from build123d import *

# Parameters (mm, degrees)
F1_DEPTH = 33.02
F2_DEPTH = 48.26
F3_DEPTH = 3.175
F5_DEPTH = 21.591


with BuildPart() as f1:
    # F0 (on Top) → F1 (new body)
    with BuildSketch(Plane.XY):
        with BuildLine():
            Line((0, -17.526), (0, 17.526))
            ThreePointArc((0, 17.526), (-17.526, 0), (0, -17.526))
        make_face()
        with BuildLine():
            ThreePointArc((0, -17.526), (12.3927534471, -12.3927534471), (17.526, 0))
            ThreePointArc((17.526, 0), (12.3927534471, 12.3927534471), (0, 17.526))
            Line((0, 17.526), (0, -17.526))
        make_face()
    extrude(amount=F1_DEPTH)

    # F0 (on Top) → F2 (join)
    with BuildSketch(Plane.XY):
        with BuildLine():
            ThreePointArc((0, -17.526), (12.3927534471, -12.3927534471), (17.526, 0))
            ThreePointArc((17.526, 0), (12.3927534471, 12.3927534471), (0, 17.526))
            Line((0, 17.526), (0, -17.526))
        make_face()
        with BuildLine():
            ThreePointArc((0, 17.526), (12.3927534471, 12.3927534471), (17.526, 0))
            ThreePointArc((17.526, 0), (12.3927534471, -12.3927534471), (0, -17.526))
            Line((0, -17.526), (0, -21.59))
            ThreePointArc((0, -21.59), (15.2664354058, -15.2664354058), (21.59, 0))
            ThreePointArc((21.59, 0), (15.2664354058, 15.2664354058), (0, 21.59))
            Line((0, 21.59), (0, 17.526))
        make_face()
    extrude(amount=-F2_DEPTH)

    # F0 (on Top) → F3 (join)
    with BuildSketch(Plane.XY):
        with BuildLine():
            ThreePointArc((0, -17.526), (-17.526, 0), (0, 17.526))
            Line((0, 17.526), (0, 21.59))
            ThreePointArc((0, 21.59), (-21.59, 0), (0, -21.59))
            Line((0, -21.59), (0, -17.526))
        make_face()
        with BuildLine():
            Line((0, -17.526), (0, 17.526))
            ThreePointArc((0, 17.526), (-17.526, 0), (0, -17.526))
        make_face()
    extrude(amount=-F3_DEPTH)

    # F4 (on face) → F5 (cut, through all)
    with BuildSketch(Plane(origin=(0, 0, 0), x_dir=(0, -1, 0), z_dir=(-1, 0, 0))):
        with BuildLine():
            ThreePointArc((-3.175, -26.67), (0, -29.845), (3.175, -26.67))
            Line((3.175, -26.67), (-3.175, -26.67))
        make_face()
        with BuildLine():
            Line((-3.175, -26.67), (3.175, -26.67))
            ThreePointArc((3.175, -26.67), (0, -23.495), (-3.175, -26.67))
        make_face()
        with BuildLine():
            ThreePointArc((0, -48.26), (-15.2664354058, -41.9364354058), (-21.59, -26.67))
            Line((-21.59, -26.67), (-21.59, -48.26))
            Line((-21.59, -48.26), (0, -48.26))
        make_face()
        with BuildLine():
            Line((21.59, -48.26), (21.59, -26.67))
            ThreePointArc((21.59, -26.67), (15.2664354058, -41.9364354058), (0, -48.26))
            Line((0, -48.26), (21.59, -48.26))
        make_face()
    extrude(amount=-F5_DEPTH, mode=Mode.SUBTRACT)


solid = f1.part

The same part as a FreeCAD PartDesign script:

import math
import FreeCAD as App
import Part
import Sketcher
from FreeCAD import Vector
Q = App.Units.Quantity

doc = App.newDocument("Part")
body = doc.addObject("PartDesign::Body", "Body")

# Sketch on XY plane
sketch1 = body.newObject("Sketcher::SketchObject", "Sketch")
sketch1.AttachmentSupport = (doc.getObject("XY_Plane"), [""])
sketch1.MapMode = "FlatFace"
sketch1.addGeometry(Part.ArcOfCircle(Part.Circle(Vector(0, 0, 0), Vector(0, 0, 1), 17.526), math.radians(90), math.radians(270)), False)
sketch1.addGeometry(Part.ArcOfCircle(Part.Circle(Vector(0, 0, 0), Vector(0, 0, 1), 17.526), math.radians(-90), math.radians(0)), False)
sketch1.addGeometry(Part.ArcOfCircle(Part.Circle(Vector(0, 0, 0), Vector(0, 0, 1), 17.526), math.radians(0), math.radians(90)), False)
sketch1.addConstraint(Sketcher.Constraint("Tangent", 0, 2, 1, 1))
sketch1.addConstraint(Sketcher.Constraint("Tangent", 1, 2, 2, 1))
sketch1.addConstraint(Sketcher.Constraint("Tangent", 2, 2, 0, 1))
sketch1.addConstraint(Sketcher.Constraint("Coincident", 0, 3, -1, 1))
sketch1.addConstraint(Sketcher.Constraint("PointOnObject", 0, 2, -2))
sketch1.addConstraint(Sketcher.Constraint("PointOnObject", 1, 2, -1))
sketch1.addConstraint(Sketcher.Constraint("PointOnObject", 2, 2, -2))
sketch1.addConstraint(Sketcher.Constraint("Radius", 0, Q("0.69 in")))
pad1 = body.newObject("PartDesign::Pad", "Pad")
pad1.Profile = sketch1
pad1.Length = Q("1.3 in")

# Sketch on XY plane
sketch2 = body.newObject("Sketcher::SketchObject", "Sketch001")
sketch2.AttachmentSupport = (doc.getObject("XY_Plane"), [""])
sketch2.MapMode = "FlatFace"
sketch2.addGeometry(Part.ArcOfCircle(Part.Circle(Vector(0, 0, 0), Vector(0, 0, 1), 21.59), math.radians(-90), math.radians(0)), False)
sketch2.addGeometry(Part.ArcOfCircle(Part.Circle(Vector(0, 0, 0), Vector(0, 0, 1), 21.59), math.radians(0), math.radians(90)), False)
sketch2.addGeometry(Part.LineSegment(Vector(0, 21.59, 0), Vector(0, -21.59, 0)), False)
sketch2.addConstraint(Sketcher.Constraint("Tangent", 0, 2, 1, 1))
sketch2.addConstraint(Sketcher.Constraint("Coincident", 1, 2, 2, 1))
sketch2.addConstraint(Sketcher.Constraint("Coincident", 2, 2, 0, 1))
sketch2.addConstraint(Sketcher.Constraint("Vertical", 2))
sketch2.addConstraint(Sketcher.Constraint("Coincident", 0, 3, -1, 1))
sketch2.addConstraint(Sketcher.Constraint("Equal", 0, 1))
sketch2.addConstraint(Sketcher.Constraint("PointOnObject", 0, 2, -1))
sketch2.addConstraint(Sketcher.Constraint("PointOnObject", 1, 2, -2))
sketch2.addConstraint(Sketcher.Constraint("Radius", 0, Q("0.85 in")))
pad2 = body.newObject("PartDesign::Pad", "Pad001")
pad2.Profile = sketch2
pad2.Length = Q("1.9 in")
pad2.Reversed = True

# Sketch on XY plane
sketch3 = body.newObject("Sketcher::SketchObject", "Sketch002")
sketch3.AttachmentSupport = (doc.getObject("XY_Plane"), [""])
sketch3.MapMode = "FlatFace"
sketch3.addGeometry(Part.ArcOfCircle(Part.Circle(Vector(0, 0, 0), Vector(0, 0, 1), 21.59), math.radians(90), math.radians(270)), False)
sketch3.addGeometry(Part.LineSegment(Vector(0, -21.59, 0), Vector(0, 21.59, 0)), False)
sketch3.addConstraint(Sketcher.Constraint("Coincident", 0, 1, 1, 2))
sketch3.addConstraint(Sketcher.Constraint("Coincident", 1, 1, 0, 2))
sketch3.addConstraint(Sketcher.Constraint("Vertical", 1))
sketch3.addConstraint(Sketcher.Constraint("Coincident", 0, 3, -1, 1))
sketch3.addConstraint(Sketcher.Constraint("PointOnObject", 0, 1, -2))
sketch3.addConstraint(Sketcher.Constraint("Radius", 0, Q("0.85 in")))
pad3 = body.newObject("PartDesign::Pad", "Pad002")
pad3.Profile = sketch3
pad3.Length = Q("0.125 in")
pad3.Reversed = True

# Sketch on YZ plane
sketch4 = body.newObject("Sketcher::SketchObject", "Sketch003")
sketch4.AttachmentSupport = (doc.getObject("YZ_Plane"), [""])
sketch4.MapMode = "FlatFace"
sketch4.addGeometry(Part.Circle(Vector(0, -26.67, 0), Vector(0, 0, 1), 3.175), False)
sketch4.addGeometry(Part.ArcOfCircle(Part.Circle(Vector(0, -26.67, 0), Vector(0, 0, 1), 21.59), math.radians(-90), math.radians(0)), False)
sketch4.addGeometry(Part.LineSegment(Vector(21.59, -26.67, 0), Vector(21.59, -48.26, 0)), False)
sketch4.addGeometry(Part.LineSegment(Vector(21.59, -48.26, 0), Vector(0, -48.26, 0)), False)
sketch4.addGeometry(Part.LineSegment(Vector(-21.59, -48.26, 0), Vector(-21.59, -26.67, 0)), False)
sketch4.addGeometry(Part.ArcOfCircle(Part.Circle(Vector(0, -26.67, 0), Vector(0, 0, 1), 21.59), math.radians(180), math.radians(270)), False)
sketch4.addGeometry(Part.LineSegment(Vector(0, -48.26, 0), Vector(-21.59, -48.26, 0)), False)
sketch4.addConstraint(Sketcher.Constraint("Tangent", 1, 2, 2, 1))
sketch4.addConstraint(Sketcher.Constraint("Coincident", 2, 2, 3, 1))
sketch4.addConstraint(Sketcher.Constraint("Tangent", 3, 2, 1, 1))
sketch4.addConstraint(Sketcher.Constraint("Tangent", 4, 2, 5, 1))
sketch4.addConstraint(Sketcher.Constraint("Tangent", 5, 2, 6, 1))
sketch4.addConstraint(Sketcher.Constraint("Coincident", 6, 2, 4, 1))
sketch4.addConstraint(Sketcher.Constraint("Vertical", 2))
sketch4.addConstraint(Sketcher.Constraint("Horizontal", 3))
sketch4.addConstraint(Sketcher.Constraint("Vertical", 4))
sketch4.addConstraint(Sketcher.Constraint("Horizontal", 6))
sketch4.addConstraint(Sketcher.Constraint("Coincident", 1, 3, 0, 3))
sketch4.addConstraint(Sketcher.Constraint("Coincident", 5, 3, 0, 3))
sketch4.addConstraint(Sketcher.Constraint("Equal", 1, 5))
sketch4.addConstraint(Sketcher.Constraint("PointOnObject", 0, 3, -2))
sketch4.addConstraint(Sketcher.Constraint("Diameter", 0, Q("0.25 in")))
sketch4.addConstraint(Sketcher.Constraint("Radius", 1, Q("0.85 in")))
sketch4.addConstraint(Sketcher.Constraint("DistanceY", 2, 2, -1, 1, Q("1.9 in")))
pocket1 = body.newObject("PartDesign::Pocket", "Pocket")
pocket1.Profile = sketch4
pocket1.Type = "ThroughAll"
pocket1.Reversed = True

doc.recompute()
